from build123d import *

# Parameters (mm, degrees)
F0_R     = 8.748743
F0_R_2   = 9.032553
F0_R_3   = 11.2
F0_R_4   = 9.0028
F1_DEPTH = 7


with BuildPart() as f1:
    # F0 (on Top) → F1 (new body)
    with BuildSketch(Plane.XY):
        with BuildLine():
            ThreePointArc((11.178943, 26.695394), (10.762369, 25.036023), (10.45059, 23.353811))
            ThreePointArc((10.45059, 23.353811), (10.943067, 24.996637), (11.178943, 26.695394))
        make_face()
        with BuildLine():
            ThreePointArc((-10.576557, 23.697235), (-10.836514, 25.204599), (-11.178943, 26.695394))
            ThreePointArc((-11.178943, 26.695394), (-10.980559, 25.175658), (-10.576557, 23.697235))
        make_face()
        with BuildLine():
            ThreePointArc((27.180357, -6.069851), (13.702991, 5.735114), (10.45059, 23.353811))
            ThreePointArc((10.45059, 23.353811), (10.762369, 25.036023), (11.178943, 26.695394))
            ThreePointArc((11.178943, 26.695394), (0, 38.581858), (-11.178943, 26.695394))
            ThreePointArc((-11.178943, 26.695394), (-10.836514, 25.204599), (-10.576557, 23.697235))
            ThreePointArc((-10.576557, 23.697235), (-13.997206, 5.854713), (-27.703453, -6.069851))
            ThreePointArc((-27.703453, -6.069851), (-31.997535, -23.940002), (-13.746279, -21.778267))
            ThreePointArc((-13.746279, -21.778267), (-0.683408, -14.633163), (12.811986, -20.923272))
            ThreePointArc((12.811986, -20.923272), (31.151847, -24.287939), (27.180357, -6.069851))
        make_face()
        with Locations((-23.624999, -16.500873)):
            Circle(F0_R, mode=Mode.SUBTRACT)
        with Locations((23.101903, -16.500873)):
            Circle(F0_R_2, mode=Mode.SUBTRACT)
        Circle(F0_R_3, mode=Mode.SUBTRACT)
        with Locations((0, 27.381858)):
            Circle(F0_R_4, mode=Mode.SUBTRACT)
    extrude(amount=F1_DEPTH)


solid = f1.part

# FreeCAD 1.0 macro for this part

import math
import FreeCAD as App
import Part
import Sketcher
from FreeCAD import Vector
Q = App.Units.Quantity

doc = App.newDocument("Part")
body = doc.addObject("PartDesign::Body", "Body")

# Sketch on XY plane
sketch1 = body.newObject("Sketcher::SketchObject", "Sketch")
sketch1.AttachmentSupport = (doc.getObject("XY_Plane"), [""])
sketch1.MapMode = "FlatFace"
sketch1.addGeometry([
    Part.ArcOfCircle(Part.Circle(Vector(-0.000008, 27.38186, 0), Vector(0, 0, 1), 11.200008), math.radians(-21.07852), math.radians(-3.513953)),  # 0
    Part.ArcOfCircle(Part.Circle(Vector(0, 27.381858, 0), Vector(0, 0, 1), 11.2), math.radians(-3.513943), math.radians(183.513943)),  # 1
    Part.ArcOfCircle(Part.Circle(Vector(0.000036, 27.381864, 0), Vector(0, 0, 1), 11.200036), math.radians(-176.486036), math.radians(-160.792898)),  # 2
    Part.ArcOfCircle(Part.Circle(Vector(-38.105501, 19.725747, 0), Vector(0, 0, 1), 27.813944), math.radians(-68.038294), math.radians(8.209188)),  # 3
    Part.ArcOfCircle(Part.Circle(Vector(-23.624999, -16.500873, 0), Vector(0, 0, 1), 11.2), math.radians(111.355138), math.radians(331.888046)),  # 4
    Part.ArcOfCircle(Part.Circle(Vector(-0.152746, -31.116831, 0), Vector(0, 0, 1), 16.492208), math.radians(38.176306), math.radians(145.511487)),  # 5
    Part.ArcOfCircle(Part.Circle(Vector(23.101903, -16.500873, 0), Vector(0, 0, 1), 11.2), math.radians(-156.74294), math.radians(68.64486)),  # 6
    Part.ArcOfCircle(Part.Circle(Vector(37.426832, 19.224065, 0), Vector(0, 0, 1), 27.290519), math.radians(171.296263), math.radians(247.947306)),  # 7
    Part.Circle(Vector(-23.624999, -16.500873, 0), Vector(0, 0, 1), 8.748743),  # 8
    Part.Circle(Vector(23.101903, -16.500873, 0), Vector(0, 0, 1), 9.032553),  # 9
    Part.Circle(Vector(0, 0, 0), Vector(0, 0, 1), 11.2),  # 10
    Part.Circle(Vector(0, 27.381858, 0), Vector(0, 0, 1), 9.0028),  # 11
], False)
sketch1.addConstraint([
    Sketcher.Constraint("Coincident", 0, 2, 1, 1),
    Sketcher.Constraint("Coincident", 1, 2, 2, 1),
    Sketcher.Constraint("Coincident", 2, 2, 3, 2),
    Sketcher.Constraint("Coincident", 3, 1, 4, 1),
    Sketcher.Constraint("Coincident", 4, 2, 5, 2),
    Sketcher.Constraint("Coincident", 5, 1, 6, 1),
    Sketcher.Constraint("Coincident", 6, 2, 7, 2),
    Sketcher.Constraint("Coincident", 7, 1, 0, 1),
    Sketcher.Constraint("Coincident", 10, 3, -1, 1),
    Sketcher.Constraint("Coincident", 1, 3, 0, 3),
    Sketcher.Constraint("Coincident", 8, 3, 4, 3),
    Sketcher.Constraint("Coincident", 9, 3, 6, 3),
    Sketcher.Constraint("Coincident", 11, 3, 0, 3),
    Sketcher.Constraint("PointOnObject", 1, 3, -2),
    Sketcher.Constraint("Diameter", 10, Q("22.4 mm")),
    Sketcher.Constraint("Radius", 1, Q("11.2 mm")),
    Sketcher.Constraint("Radius", 4, Q("11.2 mm")),
    Sketcher.Constraint("Radius", 6, Q("11.2 mm")),
    Sketcher.Constraint("Diameter", 11, Q("18.0056 mm")),
    Sketcher.Constraint("Radius", 5, Q("16.492208 mm")),
    Sketcher.Constraint("Radius", 7, Q("27.290519 mm")),
    Sketcher.Constraint("Diameter", 8, Q("17.497486 mm")),
    Sketcher.Constraint("Diameter", 9, Q("18.065106 mm")),
    Sketcher.Constraint("DistanceX", 4, 3, -1, 1, Q("23.624999 mm")),
    Sketcher.Constraint("Radius", 2, Q("11.200036 mm")),
    Sketcher.Constraint("Radius", 3, Q("27.813944 mm")),
    Sketcher.Constraint("DistanceX", 3, 3, -1, 1, Q("38.105501 mm")),
    Sketcher.Constraint("DistanceX", 4, 3, 6, 3, Q("46.726902 mm")),
    Sketcher.Constraint("DistanceY", 7, 3, 2, 3, Q("8.157799 mm")),
    Sketcher.Constraint("DistanceY", 3, 1, 3, 3, Q("25.795598 mm")),
    Sketcher.Constraint("DistanceY", 5, 1, 6, 3, Q("4.422399 mm")),
    Sketcher.Constraint("DistanceY", -1, 1, 0, 3, Q("27.38186 mm")),
    Sketcher.Constraint("DistanceY", 5, 3, -1, 1, Q("31.116831 mm")),
    Sketcher.Constraint("DistanceY", 3, 1, -1, 1, Q("6.069851 mm")),
    Sketcher.Constraint("DistanceX", 4, 2, -1, 1, Q("13.746279 mm")),
    Sketcher.Constraint("DistanceY", 6, 2, -1, 1, Q("6.069851 mm")),
    Sketcher.Constraint("DistanceX", -1, 1, 7, 1, Q("10.45059 mm")),
    Sketcher.Constraint("DistanceY", 0, 2, 2, 3, Q("0.68647 mm")),
    Sketcher.Constraint("DistanceX", 1, 2, 2, 3, Q("11.178979 mm")),
])
pad1 = body.newObject("PartDesign::Pad", "Pad")
pad1.Profile = sketch1
pad1.Length = 7

doc.recompute()
